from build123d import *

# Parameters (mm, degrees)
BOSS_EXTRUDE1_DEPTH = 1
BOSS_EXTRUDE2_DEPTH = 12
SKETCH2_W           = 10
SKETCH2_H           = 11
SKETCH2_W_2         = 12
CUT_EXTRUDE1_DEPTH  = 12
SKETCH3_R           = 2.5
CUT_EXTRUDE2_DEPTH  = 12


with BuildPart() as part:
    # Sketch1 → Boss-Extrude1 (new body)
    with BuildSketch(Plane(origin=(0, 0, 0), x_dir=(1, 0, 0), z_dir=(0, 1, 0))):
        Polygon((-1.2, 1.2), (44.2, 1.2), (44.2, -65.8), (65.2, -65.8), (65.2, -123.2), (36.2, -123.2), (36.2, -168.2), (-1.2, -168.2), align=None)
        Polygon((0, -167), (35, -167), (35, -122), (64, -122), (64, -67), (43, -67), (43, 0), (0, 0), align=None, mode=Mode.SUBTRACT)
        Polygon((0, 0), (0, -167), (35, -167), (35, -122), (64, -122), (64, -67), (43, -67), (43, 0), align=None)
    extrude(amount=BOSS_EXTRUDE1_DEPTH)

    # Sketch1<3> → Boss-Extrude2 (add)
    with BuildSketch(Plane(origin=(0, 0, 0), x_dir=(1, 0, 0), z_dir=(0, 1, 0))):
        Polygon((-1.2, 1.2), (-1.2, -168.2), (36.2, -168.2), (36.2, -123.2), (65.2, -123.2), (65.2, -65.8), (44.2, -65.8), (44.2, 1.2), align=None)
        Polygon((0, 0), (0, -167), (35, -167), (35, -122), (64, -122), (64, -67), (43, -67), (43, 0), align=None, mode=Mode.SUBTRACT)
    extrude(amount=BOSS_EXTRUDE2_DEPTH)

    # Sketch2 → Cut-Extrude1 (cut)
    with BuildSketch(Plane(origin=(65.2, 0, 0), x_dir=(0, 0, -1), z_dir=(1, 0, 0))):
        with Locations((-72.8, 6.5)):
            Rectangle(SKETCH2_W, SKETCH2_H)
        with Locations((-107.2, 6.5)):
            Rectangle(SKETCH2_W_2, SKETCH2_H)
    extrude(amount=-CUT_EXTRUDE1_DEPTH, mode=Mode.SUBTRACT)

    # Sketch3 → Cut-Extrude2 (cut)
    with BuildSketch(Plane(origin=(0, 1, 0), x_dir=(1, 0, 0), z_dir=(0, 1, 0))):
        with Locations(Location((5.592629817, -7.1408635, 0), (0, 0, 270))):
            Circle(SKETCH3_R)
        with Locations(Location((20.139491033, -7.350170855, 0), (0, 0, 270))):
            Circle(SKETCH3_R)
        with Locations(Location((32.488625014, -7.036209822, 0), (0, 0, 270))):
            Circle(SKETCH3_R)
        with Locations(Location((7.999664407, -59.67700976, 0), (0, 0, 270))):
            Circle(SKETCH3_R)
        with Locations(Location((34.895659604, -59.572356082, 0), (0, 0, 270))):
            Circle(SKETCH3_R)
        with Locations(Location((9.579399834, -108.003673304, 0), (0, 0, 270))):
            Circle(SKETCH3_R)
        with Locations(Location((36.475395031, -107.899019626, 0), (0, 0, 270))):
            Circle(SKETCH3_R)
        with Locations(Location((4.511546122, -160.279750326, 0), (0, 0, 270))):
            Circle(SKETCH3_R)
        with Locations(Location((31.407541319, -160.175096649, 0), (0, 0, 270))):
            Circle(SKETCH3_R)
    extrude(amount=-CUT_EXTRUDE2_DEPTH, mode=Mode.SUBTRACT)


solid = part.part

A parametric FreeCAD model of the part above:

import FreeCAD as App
import Part
import Sketcher


def add_polygon(sketch, points):
    """Adds a closed chain of lines whose ends are joined by coincident constraints."""
    first, n = sketch.GeometryCount, len(points)
    for a, b in zip(points, points[1:] + points[:1]):
        sketch.addGeometry(Part.LineSegment(App.Vector(*a, 0), App.Vector(*b, 0)), False)
    for i in range(n):
        sketch.addConstraint(Sketcher.Constraint("Coincident", first + i, 2, first + (i + 1) % n, 1))

doc = App.newDocument("Part")
params = doc.addObject("Spreadsheet::Sheet", "Params")
for row, (alias, value) in enumerate([
    ("sketch1_width", "29 mm"),
    ("sketch1_width2", "21 mm"),
    ("sketch1_height", "45 mm"),
    ("sketch1_height2", "67 mm"),
    ("sketch1_width3", "45.4 mm"),
    ("pad1_length", "1 mm"),
    ("sketch2_width", "29 mm"),
    ("sketch2_width2", "21 mm"),
    ("sketch2_width3", "43 mm"),
    ("sketch2_height", "45 mm"),
    ("sketch2_height2", "67 mm"),
    ("pad2_length", "12 mm"),
    ("sketch3_width", "11 mm"),
    ("sketch3_height", "10 mm"),
    ("sketch3_height2", "12 mm"),
    ("pocket1_length", "12 mm"),
    ("sketch4_diameter", "5 mm"),
    ("pocket2_length", "12 mm"),
], start=1):
    params.set(f"A{row}", alias)
    params.set(f"B{row}", "=" + value)
    params.setAlias(f"B{row}", alias)

body = doc.addObject("PartDesign::Body", "Body")

sketch1 = body.newObject("Sketcher::SketchObject", "Sketch")
sketch1.AttachmentSupport = (doc.getObject("XZ_Plane"), [""])
sketch1.MapMode = "FlatFace"
add_polygon(sketch1, [(44, -1), (-1, -1), (-1, 168), (36, 168), (36, 123), (65, 123), (65, 66), (44, 66)])
sketch1.addConstraint(Sketcher.Constraint("Horizontal", 0))
sketch1.addConstraint(Sketcher.Constraint("Vertical", 1))
sketch1.addConstraint(Sketcher.Constraint("Horizontal", 2))
sketch1.addConstraint(Sketcher.Constraint("Vertical", 3))
sketch1.addConstraint(Sketcher.Constraint("Horizontal", 4))
sketch1.addConstraint(Sketcher.Constraint("Vertical", 5))
sketch1.addConstraint(Sketcher.Constraint("Horizontal", 6))
sketch1.addConstraint(Sketcher.Constraint("Vertical", 7))
sketch1.addConstraint(Sketcher.Constraint("DistanceX", 4, 1, 4, 2, 29.0))
sketch1.addConstraint(Sketcher.Constraint("DistanceX", 6, 2, 6, 1, 21.0))
sketch1.addConstraint(Sketcher.Constraint("DistanceY", 3, 2, 3, 1, 45.0))
sketch1.addConstraint(Sketcher.Constraint("DistanceY", 7, 2, 7, 1, 67.0))
sketch1.addConstraint(Sketcher.Constraint("DistanceX", 0, 2, 0, 1, 45.4))
sketch1.addConstraint(Sketcher.Constraint("DistanceY", 1, 1, 1, 2, 169.4))
sketch1.addConstraint(Sketcher.Constraint("DistanceX", 0, 2, -1, 1, 1.2))
sketch1.addConstraint(Sketcher.Constraint("DistanceY", 0, 2, -1, 1, 1.2))
sketch1.setExpression("Constraints[16]", "Params.sketch1_width")
sketch1.setExpression("Constraints[17]", "Params.sketch1_width2")
sketch1.setExpression("Constraints[18]", "Params.sketch1_height")
sketch1.setExpression("Constraints[19]", "Params.sketch1_height2")
sketch1.setExpression("Constraints[20]", "Params.sketch1_width3")
pad1 = body.newObject("PartDesign::Pad", "Pad")
pad1.Profile = sketch1
pad1.setExpression("Length", "Params.pad1_length")
pad1.Reversed = True

sketch2 = body.newObject("Sketcher::SketchObject", "Sketch001")
sketch2.AttachmentSupport = (doc.getObject("XZ_Plane"), [""])
sketch2.MapMode = "FlatFace"
add_polygon(sketch2, [(-1, -1), (-1, 168), (36, 168), (36, 123), (65, 123), (65, 66), (44, 66), (44, -1)])
add_polygon(sketch2, [(0, 167), (0, 0), (43, 0), (43, 67), (64, 67), (64, 122), (35, 122), (35, 167)])
sketch2.addConstraint(Sketcher.Constraint("Vertical", 0))
sketch2.addConstraint(Sketcher.Constraint("Horizontal", 1))
sketch2.addConstraint(Sketcher.Constraint("Vertical", 2))
sketch2.addConstraint(Sketcher.Constraint("Horizontal", 3))
sketch2.addConstraint(Sketcher.Constraint("Vertical", 4))
sketch2.addConstraint(Sketcher.Constraint("Horizontal", 5))
sketch2.addConstraint(Sketcher.Constraint("Vertical", 6))
sketch2.addConstraint(Sketcher.Constraint("Horizontal", 7))
sketch2.addConstraint(Sketcher.Constraint("Vertical", 8))
sketch2.addConstraint(Sketcher.Constraint("Horizontal", 9))
sketch2.addConstraint(Sketcher.Constraint("Vertical", 10))
sketch2.addConstraint(Sketcher.Constraint("Horizontal", 11))
sketch2.addConstraint(Sketcher.Constraint("Vertical", 12))
sketch2.addConstraint(Sketcher.Constraint("Horizontal", 13))
sketch2.addConstraint(Sketcher.Constraint("Vertical", 14))
sketch2.addConstraint(Sketcher.Constraint("Horizontal", 15))
sketch2.addConstraint(Sketcher.Constraint("Coincident", 8, 2, -1, 1))
sketch2.addConstraint(Sketcher.Constraint("Equal", 5, 11))
sketch2.addConstraint(Sketcher.Constraint("Equal", 3, 13))
sketch2.addConstraint(Sketcher.Constraint("Equal", 6, 10))
sketch2.addConstraint(Sketcher.Constraint("Equal", 2, 14))
sketch2.addConstraint(Sketcher.Constraint("DistanceX", 3, 1, 3, 2, 29.0))
sketch2.addConstraint(Sketcher.Constraint("DistanceX", 5, 2, 5, 1, 21.0))
sketch2.addConstraint(Sketcher.Constraint("DistanceX", 9, 1, 9, 2, 43.0))
sketch2.addConstraint(Sketcher.Constraint("DistanceY", 2, 2, 2, 1, 45.0))
sketch2.addConstraint(Sketcher.Constraint("DistanceY", 6, 2, 6, 1, 67.0))
sketch2.addConstraint(Sketcher.Constraint("DistanceY", 8, 2, 8, 1, 167.0))
sketch2.addConstraint(Sketcher.Constraint("DistanceX", 1, 1, 1, 2, 37.4))
sketch2.addConstraint(Sketcher.Constraint("DistanceY", 0, 1, 0, 2, 169.4))
sketch2.addConstraint(Sketcher.Constraint("DistanceX", 0, 2, -1, 1, 1.2))
sketch2.addConstraint(Sketcher.Constraint("DistanceY", -1, 1, 0, 2, 168.2))
sketch2.setExpression("Constraints[37]", "Params.sketch2_width")
sketch2.setExpression("Constraints[38]", "Params.sketch2_width2")
sketch2.setExpression("Constraints[39]", "Params.sketch2_width3")
sketch2.setExpression("Constraints[40]", "Params.sketch2_height")
sketch2.setExpression("Constraints[41]", "Params.sketch2_height2")
pad2 = body.newObject("PartDesign::Pad", "Pad001")
pad2.Profile = sketch2
pad2.setExpression("Length", "Params.pad2_length")
pad2.Reversed = True

sketch3 = body.newObject("Sketcher::SketchObject", "Sketch002")
sketch3.AttachmentSupport = (doc.getObject("YZ_Plane"), [""])
sketch3.MapMode = "FlatFace"
sketch3.AttachmentOffset = App.Placement(App.Vector(0, 0, 65.2), App.Rotation())
add_polygon(sketch3, [(12, 78), (1, 78), (1, 68), (12, 68)])
add_polygon(sketch3, [(12, 113), (1, 113), (1, 101), (12, 101)])
sketch3.addConstraint(Sketcher.Constraint("Horizontal", 0))
sketch3.addConstraint(Sketcher.Constraint("Vertical", 1))
sketch3.addConstraint(Sketcher.Constraint("Horizontal", 2))
sketch3.addConstraint(Sketcher.Constraint("Vertical", 3))
sketch3.addConstraint(Sketcher.Constraint("Horizontal", 4))
sketch3.addConstraint(Sketcher.Constraint("Vertical", 5))
sketch3.addConstraint(Sketcher.Constraint("Horizontal", 6))
sketch3.addConstraint(Sketcher.Constraint("Vertical", 7))
sketch3.addConstraint(Sketcher.Constraint("Vertical", 1, 2, 4, 2))
sketch3.addConstraint(Sketcher.Constraint("Vertical", 3, 2, 6, 2))
sketch3.addConstraint(Sketcher.Constraint("DistanceX", 0, 2, 0, 1, 11.0))
sketch3.addConstraint(Sketcher.Constraint("DistanceY", 1, 2, 1, 1, 10.0))
sketch3.addConstraint(Sketcher.Constraint("DistanceY", 5, 2, 5, 1, 12.0))
sketch3.addConstraint(Sketcher.Constraint("DistanceX", -1, 1, 0, 2, 1.0))
sketch3.addConstraint(Sketcher.Constraint("DistanceY", -1, 1, 0, 2, 77.8))
sketch3.addConstraint(Sketcher.Constraint("DistanceY", -1, 1, 4, 2, 113.2))
sketch3.setExpression("Constraints[18]", "Params.sketch3_width")
sketch3.setExpression("Constraints[19]", "Params.sketch3_height")
sketch3.setExpression("Constraints[20]", "Params.sketch3_height2")
pocket1 = body.newObject("PartDesign::Pocket", "Pocket")
pocket1.Profile = sketch3
pocket1.setExpression("Length", "Params.pocket1_length")

sketch4 = body.newObject("Sketcher::SketchObject", "Sketch003")
sketch4.AttachmentSupport = (doc.getObject("XZ_Plane"), [""])
sketch4.MapMode = "FlatFace"
sketch4.AttachmentOffset = App.Placement(App.Vector(0, 0, -1), App.Rotation())
sketch4.addGeometry(Part.Circle(App.Vector(5.6, 7.1, 0), App.Vector(0, 0, 1), 2.5), False)
sketch4.addGeometry(Part.Circle(App.Vector(20.1, 7.4, 0), App.Vector(0, 0, 1), 2.5), False)
sketch4.addGeometry(Part.Circle(App.Vector(32.5, 7, 0), App.Vector(0, 0, 1), 2.5), False)
sketch4.addGeometry(Part.Circle(App.Vector(8, 59.7, 0), App.Vector(0, 0, 1), 2.5), False)
sketch4.addGeometry(Part.Circle(App.Vector(34.9, 59.6, 0), App.Vector(0, 0, 1), 2.5), False)
sketch4.addGeometry(Part.Circle(App.Vector(9.6, 108, 0), App.Vector(0, 0, 1), 2.5), False)
sketch4.addGeometry(Part.Circle(App.Vector(36.5, 107.9, 0), App.Vector(0, 0, 1), 2.5), False)
sketch4.addGeometry(Part.Circle(App.Vector(4.5, 160.3, 0), App.Vector(0, 0, 1), 2.5), False)
sketch4.addGeometry(Part.Circle(App.Vector(31.4, 160.2, 0), App.Vector(0, 0, 1), 2.5), False)
sketch4.addConstraint(Sketcher.Constraint("Equal", 0, 1))
sketch4.addConstraint(Sketcher.Constraint("Equal", 1, 2))
sketch4.addConstraint(Sketcher.Constraint("Equal", 2, 3))
sketch4.addConstraint(Sketcher.Constraint("Equal", 3, 4))
sketch4.addConstraint(Sketcher.Constraint("Equal", 4, 5))
sketch4.addConstraint(Sketcher.Constraint("Equal", 5, 6))
sketch4.addConstraint(Sketcher.Constraint("Equal", 6, 7))
sketch4.addConstraint(Sketcher.Constraint("Equal", 7, 8))
sketch4.addConstraint(Sketcher.Constraint("Diameter", 0, 5.0))
sketch4.addConstraint(Sketcher.Constraint("DistanceX", -1, 1, 5, 3, 9.5794))
sketch4.addConstraint(Sketcher.Constraint("DistanceY", 2, 3, 3, 3, 52.6408))
sketch4.addConstraint(Sketcher.Constraint("DistanceX", -1, 1, 0, 3, 5.59263))
sketch4.addConstraint(Sketcher.Constraint("DistanceX", -1, 1, 1, 3, 20.139491))
sketch4.addConstraint(Sketcher.Constraint("DistanceY", -1, 1, 1, 3, 7.350171))
sketch4.addConstraint(Sketcher.Constraint("DistanceY", -1, 1, 2, 3, 7.03621))
sketch4.addConstraint(Sketcher.Constraint("DistanceX", -1, 1, 4, 3, 34.89566))
sketch4.addConstraint(Sketcher.Constraint("DistanceY", -1, 1, 6, 3, 107.89902))
sketch4.addConstraint(Sketcher.Constraint("DistanceY", -1, 1, 7, 3, 160.27975))
sketch4.addConstraint(Sketcher.Constraint("DistanceX", -1, 1, 8, 3, 31.407541))
sketch4.addConstraint(Sketcher.Constraint("DistanceX", 3, 3, 2, 3, 24.488961))
sketch4.addConstraint(Sketcher.Constraint("DistanceY", 0, 3, 5, 3, 100.86281))
sketch4.addConstraint(Sketcher.Constraint("DistanceX", 3, 3, 6, 3, 28.475731))
sketch4.addConstraint(Sketcher.Constraint("DistanceX", 7, 3, 6, 3, 31.963849))
sketch4.addConstraint(Sketcher.Constraint("DistanceY", 4, 3, 8, 3, 100.602741))
sketch4.addConstraint(Sketcher.Constraint("DistanceY", -1, 1, 0, 3, 7.140864))
sketch4.addConstraint(Sketcher.Constraint("DistanceX", -1, 1, 2, 3, 32.488625))
sketch4.addConstraint(Sketcher.Constraint("DistanceY", -1, 1, 4, 3, 59.572356))
sketch4.setExpression("Constraints[8]", "Params.sketch4_diameter")
pocket2 = body.newObject("PartDesign::Pocket", "Pocket001")
pocket2.Profile = sketch4
pocket2.setExpression("Length", "Params.pocket2_length")
pocket2.Reversed = True

doc.recompute()
